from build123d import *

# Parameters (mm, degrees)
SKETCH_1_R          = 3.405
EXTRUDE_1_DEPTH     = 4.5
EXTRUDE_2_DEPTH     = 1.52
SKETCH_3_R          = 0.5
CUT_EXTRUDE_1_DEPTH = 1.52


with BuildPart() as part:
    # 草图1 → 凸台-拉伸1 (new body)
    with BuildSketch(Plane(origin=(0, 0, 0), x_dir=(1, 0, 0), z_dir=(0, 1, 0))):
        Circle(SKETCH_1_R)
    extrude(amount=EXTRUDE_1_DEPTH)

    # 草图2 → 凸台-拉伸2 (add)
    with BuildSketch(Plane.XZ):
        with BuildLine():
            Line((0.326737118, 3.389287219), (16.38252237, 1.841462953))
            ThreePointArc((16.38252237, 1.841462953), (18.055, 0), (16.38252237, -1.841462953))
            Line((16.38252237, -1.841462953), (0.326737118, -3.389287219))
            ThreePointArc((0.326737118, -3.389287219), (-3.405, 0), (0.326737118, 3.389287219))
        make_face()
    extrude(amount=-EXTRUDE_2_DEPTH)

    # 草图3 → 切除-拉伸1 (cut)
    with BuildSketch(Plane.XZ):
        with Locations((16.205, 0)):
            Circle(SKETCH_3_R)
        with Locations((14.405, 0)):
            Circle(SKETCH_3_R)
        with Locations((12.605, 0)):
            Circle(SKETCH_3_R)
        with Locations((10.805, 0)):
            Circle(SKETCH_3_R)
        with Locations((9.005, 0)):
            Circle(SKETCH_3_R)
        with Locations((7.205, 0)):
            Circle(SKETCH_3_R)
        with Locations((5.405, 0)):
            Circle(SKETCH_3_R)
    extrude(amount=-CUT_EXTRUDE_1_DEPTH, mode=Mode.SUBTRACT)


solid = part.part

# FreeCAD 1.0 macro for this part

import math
import FreeCAD as App
import Part
import Sketcher
from FreeCAD import Vector

doc = App.newDocument("Part")
body = doc.addObject("PartDesign::Body", "Body")

# Sketch on XZ plane
sketch1 = body.newObject("Sketcher::SketchObject", "Sketch")
sketch1.AttachmentSupport = (doc.getObject("XZ_Plane"), [""])
sketch1.MapMode = "FlatFace"
sketch1.addGeometry(Part.Circle(Vector(0, 0, 0), Vector(0, 0, 1), 3.405), False)
sketch1.addConstraint([
    Sketcher.Constraint("Coincident", 0, 3, -1, 1),
    Sketcher.Constraint("Diameter", 0, 6.81),
])
pad1 = body.newObject("PartDesign::Pad", "Pad")
pad1.Profile = sketch1
pad1.Length = 4.5
pad1.Reversed = True

# Sketch on XZ plane
sketch2 = body.newObject("Sketcher::SketchObject", "Sketch001")
sketch2.AttachmentSupport = (doc.getObject("XZ_Plane"), [""])
sketch2.MapMode = "FlatFace"
sketch2.addGeometry([
    Part.LineSegment(Vector(16.382522, 1.841463, 0), Vector(0.326737, 3.389287, 0)),
    Part.ArcOfCircle(Part.Circle(Vector(0, 0, 0), Vector(0, 0, 1), 3.405), math.radians(84.493537), math.radians(275.506463)),
    Part.LineSegment(Vector(0.326737, -3.389287, 0), Vector(16.382522, -1.841463, 0)),
    Part.ArcOfCircle(Part.Circle(Vector(16.205, 0, 0), Vector(0, 0, 1), 1.85), math.radians(-84.493537), math.radians(84.493537)),
], False)
sketch2.addConstraint([
    Sketcher.Constraint("Tangent", 0, 2, 1, 1),
    Sketcher.Constraint("Tangent", 1, 2, 2, 1),
    Sketcher.Constraint("Tangent", 2, 2, 3, 1),
    Sketcher.Constraint("Tangent", 3, 2, 0, 1),
    Sketcher.Constraint("Coincident", 1, 3, -1, 1),
    Sketcher.Constraint("PointOnObject", 3, 3, -1),
    Sketcher.Constraint("Radius", 3, 1.85),
    Sketcher.Constraint("Radius", 1, 3.405),
    Sketcher.Constraint("DistanceX", -1, 1, 3, 3, 16.205),
])
pad2 = body.newObject("PartDesign::Pad", "Pad001")
pad2.Profile = sketch2
pad2.Length = 1.52
pad2.Reversed = True

# Sketch on XZ plane
sketch3 = body.newObject("Sketcher::SketchObject", "Sketch002")
sketch3.AttachmentSupport = (doc.getObject("XZ_Plane"), [""])
sketch3.MapMode = "FlatFace"
sketch3.addGeometry([
    Part.Circle(Vector(16.205, 0, 0), Vector(0, 0, 1), 0.5),  # 0
    Part.Circle(Vector(14.405, 0, 0), Vector(0, 0, 1), 0.5),  # 1
    Part.Circle(Vector(12.605, 0, 0), Vector(0, 0, 1), 0.5),  # 2
    Part.Circle(Vector(10.805, 0, 0), Vector(0, 0, 1), 0.5),  # 3
    Part.Circle(Vector(9.005, 0, 0), Vector(0, 0, 1), 0.5),  # 4
    Part.Circle(Vector(7.205, 0, 0), Vector(0, 0, 1), 0.5),  # 5
    Part.Circle(Vector(5.405, 0, 0), Vector(0, 0, 1), 0.5),  # 6
], False)
sketch3.addConstraint([
    Sketcher.Constraint("Equal", 0, 1),
    Sketcher.Constraint("Equal", 1, 2),
    Sketcher.Constraint("Equal", 2, 3),
    Sketcher.Constraint("Equal", 3, 4),
    Sketcher.Constraint("Equal", 4, 5),
    Sketcher.Constraint("Equal", 5, 6),
    Sketcher.Constraint("PointOnObject", 0, 3, -1),
    Sketcher.Constraint("PointOnObject", 1, 3, -1),
    Sketcher.Constraint("PointOnObject", 2, 3, -1),
    Sketcher.Constraint("PointOnObject", 3, 3, -1),
    Sketcher.Constraint("PointOnObject", 4, 3, -1),
    Sketcher.Constraint("PointOnObject", 5, 3, -1),
    Sketcher.Constraint("PointOnObject", 6, 3, -1),
    Sketcher.Constraint("Diameter", 0, 1.0),
    Sketcher.Constraint("DistanceX", 5, 3, 0, 3, 9.0),
    Sketcher.Constraint("DistanceX", 6, 3, 1, 3, 9.0),
    Sketcher.Constraint("DistanceX", 1, 3, 0, 3, 1.8),
    Sketcher.Constraint("DistanceX", 2, 3, 1, 3, 1.8),
    Sketcher.Constraint("DistanceX", 3, 3, 2, 3, 1.8),
    Sketcher.Constraint("DistanceX", 4, 3, 3, 3, 1.8),
    Sketcher.Constraint("DistanceX", -1, 1, 0, 3, 16.205),
])
pocket1 = body.newObject("PartDesign::Pocket", "Pocket")
pocket1.Profile = sketch3
pocket1.Length = 1.52

doc.recompute()
